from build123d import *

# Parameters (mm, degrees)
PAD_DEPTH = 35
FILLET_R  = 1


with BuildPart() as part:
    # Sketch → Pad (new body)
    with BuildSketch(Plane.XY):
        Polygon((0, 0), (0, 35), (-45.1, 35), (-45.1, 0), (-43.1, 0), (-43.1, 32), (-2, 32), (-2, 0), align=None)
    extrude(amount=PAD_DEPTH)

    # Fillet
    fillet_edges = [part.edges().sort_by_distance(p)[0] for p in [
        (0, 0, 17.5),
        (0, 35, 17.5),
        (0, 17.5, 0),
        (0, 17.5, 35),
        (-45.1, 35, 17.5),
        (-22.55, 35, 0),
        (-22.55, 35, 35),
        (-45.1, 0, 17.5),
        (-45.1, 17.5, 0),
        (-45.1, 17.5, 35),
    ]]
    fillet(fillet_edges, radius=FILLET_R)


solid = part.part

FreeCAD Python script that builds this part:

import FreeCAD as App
import Part
import Sketcher


def edges_at(feature, points):
    """Names of the edges that pass closest to the given points."""
    edges = feature.Shape.Edges
    near = lambda p: min(range(len(edges)), key=lambda i: edges[i].distToShape(Part.Vertex(*p))[0])
    return sorted({f"Edge{near(p) + 1}" for p in points})

doc = App.newDocument("Part")
body = doc.addObject("PartDesign::Body", "Body")

sketch1 = body.newObject("Sketcher::SketchObject", "Sketch")
sketch1.AttachmentSupport = (doc.getObject("XY_Plane"), [""])
sketch1.MapMode = "FlatFace"
sketch1.addGeometry([
    Part.LineSegment(App.Vector(0, 0, 0), App.Vector(0, 35, 0)),
    Part.LineSegment(App.Vector(0, 35, 0), App.Vector(-45.1, 35, 0)),
    Part.LineSegment(App.Vector(-45.1, 35, 0), App.Vector(-45.1, 0, 0)),
    Part.LineSegment(App.Vector(-45.1, 0, 0), App.Vector(-43.1, 0, 0)),
    Part.LineSegment(App.Vector(-43.1, 0, 0), App.Vector(-43.1, 32, 0)),
    Part.LineSegment(App.Vector(-43.1, 32, 0), App.Vector(-2, 32, 0)),
    Part.LineSegment(App.Vector(-2, 32, 0), App.Vector(-2, 0, 0)),
    Part.LineSegment(App.Vector(-2, 0, 0), App.Vector(0, 0, 0)),
], False)
sketch1.addConstraint([
    Sketcher.Constraint("Coincident", 0, 2, 1, 1),
    Sketcher.Constraint("Coincident", 1, 2, 2, 1),
    Sketcher.Constraint("Coincident", 2, 2, 3, 1),
    Sketcher.Constraint("Coincident", 3, 2, 4, 1),
    Sketcher.Constraint("Coincident", 4, 2, 5, 1),
    Sketcher.Constraint("Coincident", 5, 2, 6, 1),
    Sketcher.Constraint("Coincident", 6, 2, 7, 1),
    Sketcher.Constraint("Coincident", 7, 2, 0, 1),
    Sketcher.Constraint("Vertical", 0),
    Sketcher.Constraint("Horizontal", 1),
    Sketcher.Constraint("Vertical", 2),
    Sketcher.Constraint("Horizontal", 3),
    Sketcher.Constraint("Vertical", 4),
    Sketcher.Constraint("Horizontal", 5),
    Sketcher.Constraint("Vertical", 6),
    Sketcher.Constraint("Horizontal", 7),
    Sketcher.Constraint("Coincident", 7, 2, -1, 1),
    Sketcher.Constraint("PointOnObject", 2, 2, -1),
    Sketcher.Constraint("Equal", 3, 7),
    Sketcher.Constraint("DistanceX", 3, 1, 3, 2, 2.0),
    Sketcher.Constraint("DistanceY", 0, 1, 0, 2, 35.0),
    Sketcher.Constraint("DistanceY", 4, 1, 4, 2, 32.0),
    Sketcher.Constraint("DistanceX", 1, 2, 1, 1, 45.1),
])
pad1 = body.newObject("PartDesign::Pad", "Pad")
pad1.Profile = sketch1
pad1.Length = 35
doc.recompute()

fillet = body.newObject("PartDesign::Fillet", "Fillet")
fillet.Base = (pad1, edges_at(pad1, [
    (0, 0, 17.5),
    (0, 35, 17.5),
    (0, 17.5, 0),
    (0, 17.5, 35),
    (-45.1, 35, 17.5),
    (-22.55, 35, 0),
    (-22.55, 35, 35),
    (-45.1, 0, 17.5),
    (-45.1, 17.5, 0),
    (-45.1, 17.5, 35),
]))
fillet.Radius = 1

doc.recompute()
